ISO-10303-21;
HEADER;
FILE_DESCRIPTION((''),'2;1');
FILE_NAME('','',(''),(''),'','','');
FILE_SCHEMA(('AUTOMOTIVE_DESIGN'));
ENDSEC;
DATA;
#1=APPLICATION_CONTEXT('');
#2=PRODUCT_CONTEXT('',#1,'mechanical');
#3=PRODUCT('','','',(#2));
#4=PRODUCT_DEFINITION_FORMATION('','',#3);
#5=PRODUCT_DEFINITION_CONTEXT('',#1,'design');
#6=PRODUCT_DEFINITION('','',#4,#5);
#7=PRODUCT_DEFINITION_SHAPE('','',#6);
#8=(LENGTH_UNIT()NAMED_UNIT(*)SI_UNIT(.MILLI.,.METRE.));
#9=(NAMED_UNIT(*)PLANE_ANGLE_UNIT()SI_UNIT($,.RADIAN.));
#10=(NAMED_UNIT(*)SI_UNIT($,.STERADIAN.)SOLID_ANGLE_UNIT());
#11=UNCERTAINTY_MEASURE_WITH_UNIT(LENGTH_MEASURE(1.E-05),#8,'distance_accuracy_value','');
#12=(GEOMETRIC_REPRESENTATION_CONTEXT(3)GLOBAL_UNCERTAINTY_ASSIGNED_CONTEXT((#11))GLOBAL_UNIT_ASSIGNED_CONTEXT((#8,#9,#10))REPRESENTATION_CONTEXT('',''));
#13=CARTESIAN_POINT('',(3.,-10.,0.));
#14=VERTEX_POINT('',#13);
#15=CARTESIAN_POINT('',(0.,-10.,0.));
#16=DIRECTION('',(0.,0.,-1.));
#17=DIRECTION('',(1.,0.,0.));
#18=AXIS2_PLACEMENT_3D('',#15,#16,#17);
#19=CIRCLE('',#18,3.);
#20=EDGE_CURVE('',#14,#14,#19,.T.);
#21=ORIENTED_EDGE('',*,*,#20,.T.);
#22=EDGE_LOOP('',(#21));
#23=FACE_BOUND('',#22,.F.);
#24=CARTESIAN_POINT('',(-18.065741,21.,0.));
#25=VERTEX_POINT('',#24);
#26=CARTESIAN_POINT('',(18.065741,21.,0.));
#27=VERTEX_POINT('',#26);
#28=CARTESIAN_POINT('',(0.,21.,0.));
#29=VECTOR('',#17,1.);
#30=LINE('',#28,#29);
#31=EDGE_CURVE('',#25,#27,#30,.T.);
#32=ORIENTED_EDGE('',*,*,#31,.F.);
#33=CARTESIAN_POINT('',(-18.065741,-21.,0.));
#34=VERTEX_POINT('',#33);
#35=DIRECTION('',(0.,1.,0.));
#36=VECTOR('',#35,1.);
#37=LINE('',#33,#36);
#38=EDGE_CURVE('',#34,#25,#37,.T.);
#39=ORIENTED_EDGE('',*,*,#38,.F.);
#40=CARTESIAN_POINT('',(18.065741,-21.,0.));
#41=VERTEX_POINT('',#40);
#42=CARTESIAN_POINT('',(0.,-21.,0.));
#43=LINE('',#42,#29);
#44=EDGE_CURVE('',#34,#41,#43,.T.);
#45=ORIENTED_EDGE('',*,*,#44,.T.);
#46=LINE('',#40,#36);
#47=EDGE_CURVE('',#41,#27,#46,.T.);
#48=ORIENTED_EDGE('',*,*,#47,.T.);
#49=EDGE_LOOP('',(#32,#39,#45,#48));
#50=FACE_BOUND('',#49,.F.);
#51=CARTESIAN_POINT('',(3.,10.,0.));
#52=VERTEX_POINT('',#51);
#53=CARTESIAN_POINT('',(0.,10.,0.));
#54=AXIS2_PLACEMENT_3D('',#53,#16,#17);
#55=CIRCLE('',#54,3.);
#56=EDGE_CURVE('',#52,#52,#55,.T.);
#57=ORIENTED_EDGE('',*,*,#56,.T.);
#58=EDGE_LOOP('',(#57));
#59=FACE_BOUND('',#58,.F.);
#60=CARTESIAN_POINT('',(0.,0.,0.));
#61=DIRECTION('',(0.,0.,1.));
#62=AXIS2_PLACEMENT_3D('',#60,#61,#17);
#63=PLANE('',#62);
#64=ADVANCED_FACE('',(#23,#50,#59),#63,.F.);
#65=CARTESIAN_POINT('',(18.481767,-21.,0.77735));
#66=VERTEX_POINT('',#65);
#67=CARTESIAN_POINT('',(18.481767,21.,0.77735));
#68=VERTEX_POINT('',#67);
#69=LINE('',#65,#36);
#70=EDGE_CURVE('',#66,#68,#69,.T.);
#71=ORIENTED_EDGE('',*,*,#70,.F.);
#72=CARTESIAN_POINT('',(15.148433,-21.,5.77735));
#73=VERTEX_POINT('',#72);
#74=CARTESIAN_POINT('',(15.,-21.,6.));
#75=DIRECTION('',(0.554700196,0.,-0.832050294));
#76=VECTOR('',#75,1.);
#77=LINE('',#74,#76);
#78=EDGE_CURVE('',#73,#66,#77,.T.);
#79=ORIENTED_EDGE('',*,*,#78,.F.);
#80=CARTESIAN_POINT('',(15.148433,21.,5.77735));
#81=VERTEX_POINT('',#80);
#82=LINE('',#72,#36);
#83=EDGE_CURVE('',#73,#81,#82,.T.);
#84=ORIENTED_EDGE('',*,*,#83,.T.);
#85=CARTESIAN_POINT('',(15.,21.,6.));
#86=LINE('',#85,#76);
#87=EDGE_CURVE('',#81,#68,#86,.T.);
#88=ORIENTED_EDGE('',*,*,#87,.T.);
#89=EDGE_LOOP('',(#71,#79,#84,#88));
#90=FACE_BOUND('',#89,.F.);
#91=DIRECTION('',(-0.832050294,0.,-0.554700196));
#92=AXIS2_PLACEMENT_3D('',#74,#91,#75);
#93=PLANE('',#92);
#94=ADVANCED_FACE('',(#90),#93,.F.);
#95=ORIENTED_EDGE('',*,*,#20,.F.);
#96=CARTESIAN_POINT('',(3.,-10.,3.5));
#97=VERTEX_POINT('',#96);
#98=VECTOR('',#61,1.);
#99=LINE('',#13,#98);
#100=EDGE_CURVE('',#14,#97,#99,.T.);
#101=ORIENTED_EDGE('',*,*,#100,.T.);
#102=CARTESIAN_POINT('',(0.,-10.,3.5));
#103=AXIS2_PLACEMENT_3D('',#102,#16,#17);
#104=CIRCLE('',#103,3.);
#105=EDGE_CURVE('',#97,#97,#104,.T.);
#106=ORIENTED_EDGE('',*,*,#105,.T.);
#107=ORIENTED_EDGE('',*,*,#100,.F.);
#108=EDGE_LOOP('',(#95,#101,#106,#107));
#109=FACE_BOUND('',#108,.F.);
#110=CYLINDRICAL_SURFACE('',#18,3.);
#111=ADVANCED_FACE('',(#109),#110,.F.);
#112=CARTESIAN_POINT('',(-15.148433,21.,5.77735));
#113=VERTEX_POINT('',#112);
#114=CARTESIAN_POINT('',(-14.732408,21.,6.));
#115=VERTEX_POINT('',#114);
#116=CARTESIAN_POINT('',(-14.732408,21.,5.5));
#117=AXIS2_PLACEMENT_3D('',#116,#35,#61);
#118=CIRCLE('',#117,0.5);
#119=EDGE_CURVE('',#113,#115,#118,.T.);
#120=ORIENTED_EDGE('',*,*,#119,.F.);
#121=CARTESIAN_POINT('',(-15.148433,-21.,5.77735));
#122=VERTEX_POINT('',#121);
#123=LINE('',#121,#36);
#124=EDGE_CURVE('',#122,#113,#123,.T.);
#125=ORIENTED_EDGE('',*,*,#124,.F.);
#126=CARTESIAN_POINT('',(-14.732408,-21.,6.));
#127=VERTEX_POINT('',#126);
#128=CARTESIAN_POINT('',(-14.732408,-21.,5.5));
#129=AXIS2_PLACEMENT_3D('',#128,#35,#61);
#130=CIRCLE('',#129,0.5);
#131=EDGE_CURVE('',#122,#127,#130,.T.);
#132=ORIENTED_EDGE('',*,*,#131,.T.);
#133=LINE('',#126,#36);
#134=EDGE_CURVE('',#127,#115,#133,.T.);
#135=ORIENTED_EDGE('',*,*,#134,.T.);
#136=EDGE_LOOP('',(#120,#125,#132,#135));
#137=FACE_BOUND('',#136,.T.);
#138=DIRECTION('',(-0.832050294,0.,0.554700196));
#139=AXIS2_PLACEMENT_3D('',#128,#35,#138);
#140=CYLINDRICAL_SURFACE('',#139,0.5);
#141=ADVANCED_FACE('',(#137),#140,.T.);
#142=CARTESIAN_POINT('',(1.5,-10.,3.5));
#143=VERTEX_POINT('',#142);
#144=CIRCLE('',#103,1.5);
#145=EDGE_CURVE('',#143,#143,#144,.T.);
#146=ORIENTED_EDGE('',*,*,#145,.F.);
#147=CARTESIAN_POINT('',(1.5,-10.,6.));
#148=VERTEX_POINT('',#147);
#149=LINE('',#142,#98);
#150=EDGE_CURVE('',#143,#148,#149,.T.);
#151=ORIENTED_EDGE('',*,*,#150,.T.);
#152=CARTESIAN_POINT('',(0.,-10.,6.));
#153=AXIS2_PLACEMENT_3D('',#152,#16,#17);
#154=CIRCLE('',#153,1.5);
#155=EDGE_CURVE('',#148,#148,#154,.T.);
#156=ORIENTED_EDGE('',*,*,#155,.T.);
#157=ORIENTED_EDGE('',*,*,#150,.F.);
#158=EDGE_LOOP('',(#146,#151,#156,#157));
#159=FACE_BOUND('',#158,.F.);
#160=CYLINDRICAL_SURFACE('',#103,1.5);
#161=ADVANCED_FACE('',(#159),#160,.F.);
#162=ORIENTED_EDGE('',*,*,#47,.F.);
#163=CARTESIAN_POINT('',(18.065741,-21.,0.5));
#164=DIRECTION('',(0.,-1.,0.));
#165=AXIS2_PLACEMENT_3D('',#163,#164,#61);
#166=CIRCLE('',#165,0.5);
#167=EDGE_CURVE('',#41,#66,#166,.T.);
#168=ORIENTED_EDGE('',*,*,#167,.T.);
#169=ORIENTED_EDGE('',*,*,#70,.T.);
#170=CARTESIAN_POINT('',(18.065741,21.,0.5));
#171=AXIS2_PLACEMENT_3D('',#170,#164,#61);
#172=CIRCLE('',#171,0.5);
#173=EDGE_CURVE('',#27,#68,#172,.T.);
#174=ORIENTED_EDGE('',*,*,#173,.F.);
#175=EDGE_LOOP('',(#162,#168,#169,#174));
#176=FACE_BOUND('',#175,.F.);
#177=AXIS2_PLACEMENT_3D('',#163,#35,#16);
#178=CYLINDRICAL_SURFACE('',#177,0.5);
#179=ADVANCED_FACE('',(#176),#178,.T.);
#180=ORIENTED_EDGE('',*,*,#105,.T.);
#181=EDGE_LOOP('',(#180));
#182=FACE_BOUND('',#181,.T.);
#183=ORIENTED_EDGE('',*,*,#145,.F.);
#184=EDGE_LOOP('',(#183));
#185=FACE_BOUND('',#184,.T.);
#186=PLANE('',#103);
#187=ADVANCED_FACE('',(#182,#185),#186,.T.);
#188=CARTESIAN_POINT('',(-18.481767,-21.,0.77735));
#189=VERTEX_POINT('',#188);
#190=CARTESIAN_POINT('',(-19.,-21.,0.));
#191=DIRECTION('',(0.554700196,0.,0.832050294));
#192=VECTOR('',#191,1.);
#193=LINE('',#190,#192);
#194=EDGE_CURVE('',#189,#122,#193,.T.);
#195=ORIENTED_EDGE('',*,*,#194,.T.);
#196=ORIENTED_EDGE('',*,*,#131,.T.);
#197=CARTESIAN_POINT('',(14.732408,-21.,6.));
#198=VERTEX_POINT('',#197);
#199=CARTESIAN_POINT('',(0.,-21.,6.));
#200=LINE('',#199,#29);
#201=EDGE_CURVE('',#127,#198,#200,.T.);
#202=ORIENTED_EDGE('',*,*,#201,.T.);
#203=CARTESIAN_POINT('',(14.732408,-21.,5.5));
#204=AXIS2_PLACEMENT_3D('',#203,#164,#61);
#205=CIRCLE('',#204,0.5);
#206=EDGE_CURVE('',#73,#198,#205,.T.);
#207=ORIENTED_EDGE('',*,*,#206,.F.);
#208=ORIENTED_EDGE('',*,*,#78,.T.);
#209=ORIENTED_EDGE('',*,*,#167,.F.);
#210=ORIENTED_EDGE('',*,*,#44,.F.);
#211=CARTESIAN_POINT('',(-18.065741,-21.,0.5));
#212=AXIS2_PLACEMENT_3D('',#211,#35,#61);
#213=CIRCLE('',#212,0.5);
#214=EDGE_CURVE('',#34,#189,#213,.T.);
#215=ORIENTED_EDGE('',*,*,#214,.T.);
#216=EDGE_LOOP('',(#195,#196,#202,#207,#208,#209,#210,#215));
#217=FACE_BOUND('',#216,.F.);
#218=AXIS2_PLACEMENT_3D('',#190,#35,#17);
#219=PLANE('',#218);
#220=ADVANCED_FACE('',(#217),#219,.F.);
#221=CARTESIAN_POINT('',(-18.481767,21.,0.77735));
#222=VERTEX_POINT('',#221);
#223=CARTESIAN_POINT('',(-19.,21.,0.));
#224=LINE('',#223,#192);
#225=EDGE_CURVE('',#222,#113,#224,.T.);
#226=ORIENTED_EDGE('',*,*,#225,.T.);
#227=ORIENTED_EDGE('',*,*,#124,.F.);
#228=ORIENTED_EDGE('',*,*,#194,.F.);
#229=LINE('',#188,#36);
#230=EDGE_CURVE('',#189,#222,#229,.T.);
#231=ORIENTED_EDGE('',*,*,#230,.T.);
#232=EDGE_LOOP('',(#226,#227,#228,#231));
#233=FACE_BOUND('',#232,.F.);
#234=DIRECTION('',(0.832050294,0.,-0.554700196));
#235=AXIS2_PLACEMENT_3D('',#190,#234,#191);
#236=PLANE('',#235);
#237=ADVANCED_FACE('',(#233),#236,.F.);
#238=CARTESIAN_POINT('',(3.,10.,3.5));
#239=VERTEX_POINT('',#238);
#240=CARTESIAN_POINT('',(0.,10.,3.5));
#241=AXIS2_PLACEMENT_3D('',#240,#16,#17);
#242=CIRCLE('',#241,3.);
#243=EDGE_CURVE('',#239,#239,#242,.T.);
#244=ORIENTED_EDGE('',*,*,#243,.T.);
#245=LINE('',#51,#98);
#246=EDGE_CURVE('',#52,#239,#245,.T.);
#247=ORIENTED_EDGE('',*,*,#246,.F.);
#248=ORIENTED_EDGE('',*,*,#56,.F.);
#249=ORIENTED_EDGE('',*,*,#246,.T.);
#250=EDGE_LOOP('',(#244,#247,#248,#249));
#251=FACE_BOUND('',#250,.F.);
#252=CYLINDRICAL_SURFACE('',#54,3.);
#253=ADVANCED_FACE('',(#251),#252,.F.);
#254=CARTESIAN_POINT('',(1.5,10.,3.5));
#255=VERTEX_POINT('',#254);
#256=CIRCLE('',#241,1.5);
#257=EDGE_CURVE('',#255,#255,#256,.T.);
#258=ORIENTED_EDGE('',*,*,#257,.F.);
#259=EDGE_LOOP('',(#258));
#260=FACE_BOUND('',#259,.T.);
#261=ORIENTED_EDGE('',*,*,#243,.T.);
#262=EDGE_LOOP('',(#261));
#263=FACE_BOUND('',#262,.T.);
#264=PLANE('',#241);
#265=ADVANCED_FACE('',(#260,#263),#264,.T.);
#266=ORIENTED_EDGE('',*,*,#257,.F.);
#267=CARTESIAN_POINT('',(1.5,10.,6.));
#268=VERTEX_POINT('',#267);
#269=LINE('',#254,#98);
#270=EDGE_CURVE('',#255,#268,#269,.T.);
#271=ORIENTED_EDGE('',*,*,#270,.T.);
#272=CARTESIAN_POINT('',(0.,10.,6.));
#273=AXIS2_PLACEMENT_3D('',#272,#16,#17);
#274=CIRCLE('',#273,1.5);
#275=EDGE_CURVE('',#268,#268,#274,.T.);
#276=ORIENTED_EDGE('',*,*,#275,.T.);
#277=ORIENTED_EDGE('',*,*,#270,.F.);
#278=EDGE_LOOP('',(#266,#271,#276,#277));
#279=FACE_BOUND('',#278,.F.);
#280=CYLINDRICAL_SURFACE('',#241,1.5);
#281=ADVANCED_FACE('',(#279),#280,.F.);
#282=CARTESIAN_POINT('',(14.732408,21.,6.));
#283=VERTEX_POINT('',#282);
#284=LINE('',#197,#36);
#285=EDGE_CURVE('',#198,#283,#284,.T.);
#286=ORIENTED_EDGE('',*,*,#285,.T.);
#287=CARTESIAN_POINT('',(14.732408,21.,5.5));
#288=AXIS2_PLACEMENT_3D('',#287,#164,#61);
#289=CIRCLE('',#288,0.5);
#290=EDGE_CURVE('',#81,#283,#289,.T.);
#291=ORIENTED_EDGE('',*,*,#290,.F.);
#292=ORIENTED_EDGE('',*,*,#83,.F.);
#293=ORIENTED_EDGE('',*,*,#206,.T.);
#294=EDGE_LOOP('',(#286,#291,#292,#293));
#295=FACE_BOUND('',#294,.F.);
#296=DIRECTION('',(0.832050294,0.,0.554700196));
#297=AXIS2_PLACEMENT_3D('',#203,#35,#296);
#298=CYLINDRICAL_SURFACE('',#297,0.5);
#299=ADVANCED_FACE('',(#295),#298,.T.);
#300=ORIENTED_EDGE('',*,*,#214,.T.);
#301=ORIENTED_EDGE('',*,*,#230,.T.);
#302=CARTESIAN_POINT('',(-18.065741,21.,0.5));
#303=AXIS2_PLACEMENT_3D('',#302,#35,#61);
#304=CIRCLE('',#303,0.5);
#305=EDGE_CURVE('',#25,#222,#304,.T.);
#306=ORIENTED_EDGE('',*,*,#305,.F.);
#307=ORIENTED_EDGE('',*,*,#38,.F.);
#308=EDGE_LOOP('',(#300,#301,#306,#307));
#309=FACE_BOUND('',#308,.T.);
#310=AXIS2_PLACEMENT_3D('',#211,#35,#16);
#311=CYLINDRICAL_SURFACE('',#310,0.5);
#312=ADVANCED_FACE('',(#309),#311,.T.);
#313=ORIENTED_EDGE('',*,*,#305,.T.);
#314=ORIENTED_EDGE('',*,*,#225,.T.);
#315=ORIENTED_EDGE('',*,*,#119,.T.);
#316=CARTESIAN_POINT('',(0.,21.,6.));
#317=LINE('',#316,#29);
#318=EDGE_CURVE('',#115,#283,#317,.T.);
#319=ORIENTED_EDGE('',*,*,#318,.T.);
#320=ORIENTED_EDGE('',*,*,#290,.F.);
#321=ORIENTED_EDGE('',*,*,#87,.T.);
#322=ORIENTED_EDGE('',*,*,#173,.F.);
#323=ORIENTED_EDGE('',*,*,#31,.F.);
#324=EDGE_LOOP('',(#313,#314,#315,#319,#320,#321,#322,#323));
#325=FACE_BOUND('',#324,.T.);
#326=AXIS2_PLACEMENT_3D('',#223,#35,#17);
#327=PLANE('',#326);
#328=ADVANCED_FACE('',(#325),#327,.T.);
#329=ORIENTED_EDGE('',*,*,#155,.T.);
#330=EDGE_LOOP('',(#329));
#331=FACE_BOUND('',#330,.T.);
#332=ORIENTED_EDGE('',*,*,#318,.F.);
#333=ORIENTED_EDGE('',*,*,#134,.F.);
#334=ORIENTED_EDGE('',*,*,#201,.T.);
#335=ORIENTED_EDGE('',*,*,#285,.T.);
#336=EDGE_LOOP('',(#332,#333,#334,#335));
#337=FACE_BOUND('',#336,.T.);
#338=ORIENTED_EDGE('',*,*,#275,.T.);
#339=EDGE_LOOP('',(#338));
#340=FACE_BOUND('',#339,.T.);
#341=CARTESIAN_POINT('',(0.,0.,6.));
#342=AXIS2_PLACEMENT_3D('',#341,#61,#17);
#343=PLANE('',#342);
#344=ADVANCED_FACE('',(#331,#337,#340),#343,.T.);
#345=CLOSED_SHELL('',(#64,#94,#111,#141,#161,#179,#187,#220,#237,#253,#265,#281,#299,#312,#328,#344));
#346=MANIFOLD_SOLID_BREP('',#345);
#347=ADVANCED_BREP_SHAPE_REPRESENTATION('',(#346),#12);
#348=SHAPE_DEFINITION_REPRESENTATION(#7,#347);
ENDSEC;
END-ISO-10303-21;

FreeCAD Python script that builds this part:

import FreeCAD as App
import Part
import Sketcher
from FreeCAD import Vector
Q = App.Units.Quantity


def edges_at(feature, points):
    """Names of the edges that pass closest to the given points."""
    edges = feature.Shape.Edges
    near = lambda p: min(range(len(edges)), key=lambda i: edges[i].distToShape(Part.Vertex(*p))[0])
    return sorted({f"Edge{near(p) + 1}" for p in points})


def add_polygon(sketch, points):
    """Adds a closed chain of lines whose ends are joined by coincident constraints."""
    first, n = sketch.GeometryCount, len(points)
    for a, b in zip(points, points[1:] + points[:1]):
        sketch.addGeometry(Part.LineSegment(App.Vector(*a, 0), App.Vector(*b, 0)), False)
    for i in range(n):
        sketch.addConstraint(Sketcher.Constraint("Coincident", first + i, 2, first + (i + 1) % n, 1))

doc = App.newDocument("Part")
body = doc.addObject("PartDesign::Body", "Body")

sketch1 = body.newObject("Sketcher::SketchObject", "Sketch")
sketch1.AttachmentSupport = (doc.getObject("XY_Plane"), [""])
sketch1.MapMode = "FlatFace"
add_polygon(sketch1, [(-19, 21), (-19, -21), (19, -21), (19, 21)])
sketch1.addConstraint([
    Sketcher.Constraint("Vertical", 0),
    Sketcher.Constraint("Horizontal", 1),
    Sketcher.Constraint("Vertical", 2),
    Sketcher.Constraint("Horizontal", 3),
    Sketcher.Constraint("Symmetric", 0, 2, 2, 2, -1, 1),
    Sketcher.Constraint("DistanceX", 1, 1, 1, 2, Q("38 mm")),
    Sketcher.Constraint("DistanceY", 0, 2, 0, 1, Q("42 mm")),
])
pad1 = body.newObject("PartDesign::Pad", "Pad")
pad1.Profile = sketch1
pad1.Length = 6

sketch2 = body.newObject("Sketcher::SketchObject", "Sketch001")
sketch2.AttachmentSupport = (doc.getObject("XZ_Plane"), [""])
sketch2.MapMode = "FlatFace"
sketch2.AttachmentOffset = App.Placement(Vector(0, 0, 21), App.Rotation())
add_polygon(sketch2, [(15, 6), (19, 0), (19, 6)])
add_polygon(sketch2, [(-15, 6), (-19, 6), (-19, 0)])
sketch2.addConstraint([
    Sketcher.Constraint("Vertical", 1),
    Sketcher.Constraint("Horizontal", 2),
    Sketcher.Constraint("Horizontal", 3),
    Sketcher.Constraint("Vertical", 4),
    Sketcher.Constraint("Symmetric", 0, 2, 4, 2, -1, 1),
    Sketcher.Constraint("Symmetric", 2, 2, 5, 2, -2),
    Sketcher.Constraint("PointOnObject", 0, 2, -1),
    Sketcher.Constraint("DistanceX", 2, 2, 2, 1, Q("4 mm")),
    Sketcher.Constraint("DistanceY", 1, 1, 1, 2, Q("6 mm")),
    Sketcher.Constraint("DistanceX", -1, 1, 0, 2, Q("19 mm")),
])
pocket1 = body.newObject("PartDesign::Pocket", "Pocket")
pocket1.Profile = sketch2
pocket1.Length = 42
doc.recompute()

fillet = body.newObject("PartDesign::Fillet", "Fillet")
fillet.Base = (pocket1, edges_at(pocket1, [
    (-19, 0, 0),
    (19, 0, 0),
    (-15, 0, 6),
    (15, 0, 6),
]))
fillet.Radius = 0.5

sketch3 = body.newObject("Sketcher::SketchObject", "Sketch002")
sketch3.AttachmentSupport = (doc.getObject("XY_Plane"), [""])
sketch3.MapMode = "FlatFace"
sketch3.addGeometry([
    Part.Circle(Vector(0, -10, 0), Vector(0, 0, 1), 3),
    Part.Circle(Vector(0, 10, 0), Vector(0, 0, 1), 3),
], False)
sketch3.addConstraint([
    Sketcher.Constraint("Equal", 0, 1),
    Sketcher.Constraint("Symmetric", 0, 3, 1, 3, -1, 1),
    Sketcher.Constraint("PointOnObject", 0, 3, -2),
    Sketcher.Constraint("Diameter", 0, Q("6 mm")),
    Sketcher.Constraint("DistanceY", 0, 3, -1, 1, Q("10 mm")),
])
pocket2 = body.newObject("PartDesign::Pocket", "Pocket001")
pocket2.Profile = sketch3
pocket2.Length = 3.5
pocket2.Reversed = True

sketch4 = body.newObject("Sketcher::SketchObject", "Sketch003")
sketch4.AttachmentSupport = (doc.getObject("XY_Plane"), [""])
sketch4.MapMode = "FlatFace"
sketch4.AttachmentOffset = App.Placement(Vector(0, 0, 3.5), App.Rotation())
sketch4.addGeometry([
    Part.Circle(Vector(0, -10, 0), Vector(0, 0, 1), 1.5),
    Part.Circle(Vector(0, 10, 0), Vector(0, 0, 1), 1.5),
], False)
sketch4.addConstraint([
    Sketcher.Constraint("Equal", 0, 1),
    Sketcher.Constraint("Symmetric", 0, 3, 1, 3, -1, 1),
    Sketcher.Constraint("PointOnObject", 0, 3, -2),
    Sketcher.Constraint("Diameter", 0, Q("3 mm")),
    Sketcher.Constraint("DistanceY", 0, 3, -1, 1, Q("10 mm")),
])
pocket3 = body.newObject("PartDesign::Pocket", "Pocket002")
pocket3.Profile = sketch4
pocket3.Length = 5
pocket3.Reversed = True

doc.recompute()
